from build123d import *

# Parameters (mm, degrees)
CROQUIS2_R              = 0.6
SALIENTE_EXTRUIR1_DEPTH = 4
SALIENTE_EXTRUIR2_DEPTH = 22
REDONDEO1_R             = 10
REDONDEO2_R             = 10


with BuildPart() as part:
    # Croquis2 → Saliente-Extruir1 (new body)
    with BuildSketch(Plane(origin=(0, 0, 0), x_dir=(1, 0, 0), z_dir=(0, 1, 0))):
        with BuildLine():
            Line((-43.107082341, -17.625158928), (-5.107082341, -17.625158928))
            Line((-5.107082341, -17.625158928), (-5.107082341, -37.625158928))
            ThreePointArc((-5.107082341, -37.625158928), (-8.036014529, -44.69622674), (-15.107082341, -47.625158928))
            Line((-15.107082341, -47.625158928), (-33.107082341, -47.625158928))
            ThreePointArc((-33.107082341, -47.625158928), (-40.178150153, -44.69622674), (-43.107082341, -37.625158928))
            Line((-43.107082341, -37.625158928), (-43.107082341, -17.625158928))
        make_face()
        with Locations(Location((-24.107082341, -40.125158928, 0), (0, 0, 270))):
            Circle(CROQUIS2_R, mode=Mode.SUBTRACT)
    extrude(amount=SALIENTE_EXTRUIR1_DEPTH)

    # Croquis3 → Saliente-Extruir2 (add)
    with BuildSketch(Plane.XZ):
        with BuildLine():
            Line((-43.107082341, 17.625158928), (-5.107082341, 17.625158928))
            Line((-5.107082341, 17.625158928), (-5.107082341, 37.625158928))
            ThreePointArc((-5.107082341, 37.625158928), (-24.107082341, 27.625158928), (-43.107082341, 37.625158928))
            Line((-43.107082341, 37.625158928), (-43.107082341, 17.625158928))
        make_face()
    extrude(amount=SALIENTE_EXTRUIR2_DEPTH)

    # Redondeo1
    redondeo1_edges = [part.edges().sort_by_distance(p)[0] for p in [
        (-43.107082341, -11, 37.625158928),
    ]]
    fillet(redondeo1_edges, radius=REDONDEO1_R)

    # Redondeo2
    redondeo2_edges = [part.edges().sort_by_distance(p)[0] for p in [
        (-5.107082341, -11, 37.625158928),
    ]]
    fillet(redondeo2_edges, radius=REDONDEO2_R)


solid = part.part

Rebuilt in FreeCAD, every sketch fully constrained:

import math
import FreeCAD as App
import Part
import Sketcher

V = App.Vector


def edges_at(feature, points):
    """Names of the edges that pass closest to the given points."""
    edges = feature.Shape.Edges
    near = lambda p: min(range(len(edges)), key=lambda i: edges[i].distToShape(Part.Vertex(*p))[0])
    return sorted({f"Edge{near(p) + 1}" for p in points})

doc = App.newDocument("Part")
body = doc.addObject("PartDesign::Body", "Body")

sketch1 = doc.addObject("Sketcher::SketchObject", "Sketch")
body.addObject(sketch1)
sketch1.AttachmentSupport = (doc.XZ_Plane, [""])
sketch1.MapMode = "FlatFace"
sketch1.addGeometry(Part.LineSegment(V(-5.1, 17.6, 0), V(-43.1, 17.6, 0)), False)
sketch1.addGeometry(Part.LineSegment(V(-43.1, 17.6, 0), V(-43.1, 37.6, 0)), False)
sketch1.addGeometry(Part.ArcOfCircle(Part.Circle(V(-33.1, 37.6, 0), V(0, 0, 1), 10), math.radians(90), math.radians(180)), False)
sketch1.addGeometry(Part.LineSegment(V(-33.1, 47.6, 0), V(-15.1, 47.6, 0)), False)
sketch1.addGeometry(Part.ArcOfCircle(Part.Circle(V(-15.1, 37.6, 0), V(0, 0, 1), 10), math.radians(0), math.radians(90)), False)
sketch1.addGeometry(Part.LineSegment(V(-5.1, 37.6, 0), V(-5.1, 17.6, 0)), False)
sketch1.addGeometry(Part.Circle(V(-24.1, 40.1, 0), V(0, 0, 1), 0.6), False)
sketch1.addConstraint(Sketcher.Constraint("Coincident", 0, 2, 1, 1))
sketch1.addConstraint(Sketcher.Constraint("Tangent", 1, 2, 2, 2))
sketch1.addConstraint(Sketcher.Constraint("Tangent", 2, 1, 3, 1))
sketch1.addConstraint(Sketcher.Constraint("Tangent", 3, 2, 4, 2))
sketch1.addConstraint(Sketcher.Constraint("Tangent", 4, 1, 5, 1))
sketch1.addConstraint(Sketcher.Constraint("Coincident", 5, 2, 0, 1))
sketch1.addConstraint(Sketcher.Constraint("Horizontal", 0))
sketch1.addConstraint(Sketcher.Constraint("Vertical", 1))
sketch1.addConstraint(Sketcher.Constraint("Horizontal", 3))
sketch1.addConstraint(Sketcher.Constraint("Vertical", 5))
sketch1.addConstraint(Sketcher.Constraint("Equal", 2, 4))
sketch1.addConstraint(Sketcher.Constraint("Radius", 2, 10.0))
sketch1.addConstraint(Sketcher.Constraint("Diameter", 6, 1.2))
sketch1.addConstraint(Sketcher.Constraint("DistanceX", 0, 2, 0, 1, 38.0))
sketch1.addConstraint(Sketcher.Constraint("DistanceY", 1, 1, 1, 2, 20.0))
sketch1.addConstraint(Sketcher.Constraint("DistanceX", 2, 3, 6, 3, 9.0))
sketch1.addConstraint(Sketcher.Constraint("DistanceY", 2, 3, 6, 3, 2.5))
sketch1.addConstraint(Sketcher.Constraint("DistanceY", -1, 1, 2, 3, 37.625159))
sketch1.addConstraint(Sketcher.Constraint("DistanceX", 2, 3, -1, 1, 33.107082))
pad1 = doc.addObject("PartDesign::Pad", "Pad")
body.addObject(pad1)
pad1.Profile = sketch1
pad1.Length = 4
pad1.Reversed = True

sketch2 = doc.addObject("Sketcher::SketchObject", "Sketch001")
body.addObject(sketch2)
sketch2.AttachmentSupport = (doc.XZ_Plane, [""])
sketch2.MapMode = "FlatFace"
sketch2.addGeometry(Part.LineSegment(V(-43, 18, 0), V(-5, 18, 0)), False)
sketch2.addGeometry(Part.LineSegment(V(-5, 18, 0), V(-5, 38, 0)), False)
sketch2.addGeometry(Part.ArcOfCircle(Part.Circle(V(-24, 51, 0), V(0, 0, 1), 23), math.radians(-146), math.radians(-34)), False)
sketch2.addGeometry(Part.LineSegment(V(-43, 38, 0), V(-43, 18, 0)), False)
sketch2.addConstraint(Sketcher.Constraint("Coincident", 0, 2, 1, 1))
sketch2.addConstraint(Sketcher.Constraint("Coincident", 1, 2, 2, 2))
sketch2.addConstraint(Sketcher.Constraint("Coincident", 2, 1, 3, 1))
sketch2.addConstraint(Sketcher.Constraint("Coincident", 3, 2, 0, 1))
sketch2.addConstraint(Sketcher.Constraint("Horizontal", 0))
sketch2.addConstraint(Sketcher.Constraint("Vertical", 1))
sketch2.addConstraint(Sketcher.Constraint("Vertical", 3))
sketch2.addConstraint(Sketcher.Constraint("Horizontal", 1, 2, 2, 1))
sketch2.addConstraint(Sketcher.Constraint("DistanceX", 0, 1, 0, 2, 38.0))
sketch2.addConstraint(Sketcher.Constraint("DistanceY", 1, 1, 1, 2, 20.0))
sketch2.addConstraint(Sketcher.Constraint("Radius", 2, 23.05))
sketch2.addConstraint(Sketcher.Constraint("DistanceY", -1, 1, 2, 3, 50.675159))
sketch2.addConstraint(Sketcher.Constraint("DistanceX", 2, 3, -1, 1, 24.107082))
pad2 = doc.addObject("PartDesign::Pad", "Pad001")
body.addObject(pad2)
pad2.Profile = sketch2
pad2.Length = 22
doc.recompute()

fillet = doc.addObject("PartDesign::Fillet", "Fillet")
body.addObject(fillet)
fillet.Base = (pad2, edges_at(pad2, [(-43.107, -11, 37.625)]))
fillet.Radius = 10
doc.recompute()

fillet2 = doc.addObject("PartDesign::Fillet", "Fillet001")
body.addObject(fillet2)
fillet2.Base = (fillet, edges_at(fillet, [(-5.107, -11, 37.625)]))
fillet2.Radius = 10

doc.recompute()
